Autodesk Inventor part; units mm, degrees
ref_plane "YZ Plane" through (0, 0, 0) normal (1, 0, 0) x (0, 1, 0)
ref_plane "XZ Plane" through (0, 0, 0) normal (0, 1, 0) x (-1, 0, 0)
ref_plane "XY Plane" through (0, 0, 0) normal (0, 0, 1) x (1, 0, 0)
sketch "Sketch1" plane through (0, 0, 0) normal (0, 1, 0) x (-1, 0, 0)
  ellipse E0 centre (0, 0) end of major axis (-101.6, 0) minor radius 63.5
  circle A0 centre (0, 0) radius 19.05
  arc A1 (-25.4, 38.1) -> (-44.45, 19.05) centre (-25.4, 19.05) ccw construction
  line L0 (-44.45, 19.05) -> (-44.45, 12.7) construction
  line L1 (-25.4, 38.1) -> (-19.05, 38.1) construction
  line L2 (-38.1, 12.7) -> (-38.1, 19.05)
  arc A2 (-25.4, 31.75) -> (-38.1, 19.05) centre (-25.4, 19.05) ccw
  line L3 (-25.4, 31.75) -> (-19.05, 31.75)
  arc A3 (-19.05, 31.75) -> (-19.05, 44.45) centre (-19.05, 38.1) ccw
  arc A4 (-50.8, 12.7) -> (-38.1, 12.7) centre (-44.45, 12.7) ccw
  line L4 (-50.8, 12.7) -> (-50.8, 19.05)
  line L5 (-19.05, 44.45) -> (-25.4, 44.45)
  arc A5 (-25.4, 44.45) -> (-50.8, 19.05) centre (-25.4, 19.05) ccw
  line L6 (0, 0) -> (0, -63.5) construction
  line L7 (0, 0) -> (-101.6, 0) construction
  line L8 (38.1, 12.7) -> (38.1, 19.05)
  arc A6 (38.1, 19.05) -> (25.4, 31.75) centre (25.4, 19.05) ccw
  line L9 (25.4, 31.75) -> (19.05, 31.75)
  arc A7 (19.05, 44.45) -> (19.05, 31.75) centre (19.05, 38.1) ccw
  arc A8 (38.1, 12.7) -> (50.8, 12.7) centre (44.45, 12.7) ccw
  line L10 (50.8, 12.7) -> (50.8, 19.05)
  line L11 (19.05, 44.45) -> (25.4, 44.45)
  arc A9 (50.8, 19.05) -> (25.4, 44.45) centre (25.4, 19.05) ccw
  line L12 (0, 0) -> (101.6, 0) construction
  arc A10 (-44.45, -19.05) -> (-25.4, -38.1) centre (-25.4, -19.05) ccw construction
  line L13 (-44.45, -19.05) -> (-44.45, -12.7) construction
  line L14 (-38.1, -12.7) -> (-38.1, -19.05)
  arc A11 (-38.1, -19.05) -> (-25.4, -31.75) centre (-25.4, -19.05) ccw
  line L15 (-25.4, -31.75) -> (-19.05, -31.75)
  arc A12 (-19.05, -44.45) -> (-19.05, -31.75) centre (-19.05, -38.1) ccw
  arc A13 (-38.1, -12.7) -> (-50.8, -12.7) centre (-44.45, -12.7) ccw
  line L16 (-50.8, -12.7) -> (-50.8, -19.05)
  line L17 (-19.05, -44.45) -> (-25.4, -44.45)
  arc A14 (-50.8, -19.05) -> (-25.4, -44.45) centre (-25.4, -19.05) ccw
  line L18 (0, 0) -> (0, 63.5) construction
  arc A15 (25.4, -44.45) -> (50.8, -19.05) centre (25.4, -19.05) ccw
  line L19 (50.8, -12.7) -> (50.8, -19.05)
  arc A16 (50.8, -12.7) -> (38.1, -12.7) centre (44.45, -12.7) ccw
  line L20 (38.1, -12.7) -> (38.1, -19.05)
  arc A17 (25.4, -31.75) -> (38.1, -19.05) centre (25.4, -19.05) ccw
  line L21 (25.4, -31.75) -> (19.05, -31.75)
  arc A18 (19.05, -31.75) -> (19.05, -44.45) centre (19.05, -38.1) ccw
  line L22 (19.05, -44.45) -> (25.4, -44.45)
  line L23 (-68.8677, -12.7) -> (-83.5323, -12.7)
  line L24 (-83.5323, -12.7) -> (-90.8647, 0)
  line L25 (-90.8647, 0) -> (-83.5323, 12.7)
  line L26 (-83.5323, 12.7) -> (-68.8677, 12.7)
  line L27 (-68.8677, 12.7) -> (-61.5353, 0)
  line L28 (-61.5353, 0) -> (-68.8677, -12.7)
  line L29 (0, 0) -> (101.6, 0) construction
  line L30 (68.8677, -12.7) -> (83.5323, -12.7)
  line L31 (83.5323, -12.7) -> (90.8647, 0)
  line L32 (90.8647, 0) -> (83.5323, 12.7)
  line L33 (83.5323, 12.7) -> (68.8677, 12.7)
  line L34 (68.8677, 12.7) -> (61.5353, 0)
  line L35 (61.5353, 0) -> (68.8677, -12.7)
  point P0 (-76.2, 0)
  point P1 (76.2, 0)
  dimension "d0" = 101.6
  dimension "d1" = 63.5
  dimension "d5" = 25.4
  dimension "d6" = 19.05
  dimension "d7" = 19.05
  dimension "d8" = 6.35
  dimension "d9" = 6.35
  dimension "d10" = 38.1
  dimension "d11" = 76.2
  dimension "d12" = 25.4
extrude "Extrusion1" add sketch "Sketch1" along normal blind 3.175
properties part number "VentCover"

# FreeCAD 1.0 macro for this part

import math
import FreeCAD as App
import Part
import Sketcher
Q = App.Units.Quantity


def add_polygon(sketch, points):
    """Adds a closed chain of lines whose ends are joined by coincident constraints."""
    first, n = sketch.GeometryCount, len(points)
    for a, b in zip(points, points[1:] + points[:1]):
        sketch.addGeometry(Part.LineSegment(App.Vector(*a, 0), App.Vector(*b, 0)), False)
    for i in range(n):
        sketch.addConstraint(Sketcher.Constraint("Coincident", first + i, 2, first + (i + 1) % n, 1))

doc = App.newDocument("Part")
params = doc.addObject("Spreadsheet::Sheet", "Params")
for row, (alias, value) in enumerate([
    ("sketch1_radius", "1 in"),
    ("sketch1_diameter", "1.5 in"),
    ("sketch1_radius2", "0.5 in"),
    ("sketch1_width", "0.25 in"),
    ("pad1_length", "0.125 in"),
], start=1):
    params.set(f"A{row}", alias)
    params.set(f"B{row}", "=" + value)
    params.setAlias(f"B{row}", alias)

body = doc.addObject("PartDesign::Body", "Body")

sketch1 = body.newObject("Sketcher::SketchObject", "Sketch")
sketch1.AttachmentSupport = (doc.getObject("XZ_Plane"), [""])
sketch1.MapMode = "FlatFace"
sketch1.addGeometry(Part.Ellipse(App.Vector(101.6, 0, 0), App.Vector(0, 63.5, 0), App.Vector(0, 0, 0)), False)
sketch1.addGeometry(Part.ArcOfCircle(Part.Circle(App.Vector(44.45, -12.7, 0), App.Vector(0, 0, 1), 6.35), math.radians(0), math.radians(180)), False)
sketch1.addGeometry(Part.LineSegment(App.Vector(38.1, -12.7, 0), App.Vector(38.1, -19.05, 0)), False)
sketch1.addGeometry(Part.ArcOfCircle(Part.Circle(App.Vector(25.4, -19.05, 0), App.Vector(0, 0, 1), 12.7), math.radians(-90), math.radians(0)), False)
sketch1.addGeometry(Part.LineSegment(App.Vector(25.4, -31.75, 0), App.Vector(19.05, -31.75, 0)), False)
sketch1.addGeometry(Part.ArcOfCircle(Part.Circle(App.Vector(19.05, -38.1, 0), App.Vector(0, 0, 1), 6.35), math.radians(90), math.radians(270)), False)
sketch1.addGeometry(Part.LineSegment(App.Vector(19.05, -44.45, 0), App.Vector(25.4, -44.45, 0)), False)
sketch1.addGeometry(Part.ArcOfCircle(Part.Circle(App.Vector(25.4, -19.05, 0), App.Vector(0, 0, 1), 25.4), math.radians(-90), math.radians(0)), False)
sketch1.addGeometry(Part.LineSegment(App.Vector(50.8, -19.05, 0), App.Vector(50.8, -12.7, 0)), False)
sketch1.addGeometry(Part.ArcOfCircle(Part.Circle(App.Vector(-25.4, -19.05, 0), App.Vector(0, 0, 1), 25.4), math.radians(180), math.radians(270)), False)
sketch1.addGeometry(Part.LineSegment(App.Vector(-25.4, -44.45, 0), App.Vector(-19.05, -44.45, 0)), False)
sketch1.addGeometry(Part.ArcOfCircle(Part.Circle(App.Vector(-19.05, -38.1, 0), App.Vector(0, 0, 1), 6.35), math.radians(-90), math.radians(90)), False)
sketch1.addGeometry(Part.LineSegment(App.Vector(-19.05, -31.75, 0), App.Vector(-25.4, -31.75, 0)), False)
sketch1.addGeometry(Part.ArcOfCircle(Part.Circle(App.Vector(-25.4, -19.05, 0), App.Vector(0, 0, 1), 12.7), math.radians(180), math.radians(270)), False)
sketch1.addGeometry(Part.LineSegment(App.Vector(-38.1, -19.05, 0), App.Vector(-38.1, -12.7, 0)), False)
sketch1.addGeometry(Part.ArcOfCircle(Part.Circle(App.Vector(-44.45, -12.7, 0), App.Vector(0, 0, 1), 6.35), math.radians(0), math.radians(180)), False)
sketch1.addGeometry(Part.LineSegment(App.Vector(-50.8, -12.7, 0), App.Vector(-50.8, -19.05, 0)), False)
add_polygon(sketch1, [(61.5353, 0), (68.8677, -12.7), (83.5323, -12.7), (90.8647, 0), (83.5323, 12.7), (68.8677, 12.7)])
sketch1.addGeometry(Part.Circle(App.Vector(0, 0, 0), App.Vector(0, 0, 1), 19.05), False)
sketch1.addGeometry(Part.LineSegment(App.Vector(38.1, 19.05, 0), App.Vector(38.1, 12.7, 0)), False)
sketch1.addGeometry(Part.ArcOfCircle(Part.Circle(App.Vector(44.45, 12.7, 0), App.Vector(0, 0, 1), 6.35), math.radians(180), math.radians(360)), False)
sketch1.addGeometry(Part.LineSegment(App.Vector(50.8, 12.7, 0), App.Vector(50.8, 19.05, 0)), False)
sketch1.addGeometry(Part.ArcOfCircle(Part.Circle(App.Vector(25.4, 19.05, 0), App.Vector(0, 0, 1), 25.4), math.radians(0), math.radians(90)), False)
sketch1.addGeometry(Part.LineSegment(App.Vector(25.4, 44.45, 0), App.Vector(19.05, 44.45, 0)), False)
sketch1.addGeometry(Part.ArcOfCircle(Part.Circle(App.Vector(19.05, 38.1, 0), App.Vector(0, 0, 1), 6.35), math.radians(90), math.radians(270)), False)
sketch1.addGeometry(Part.LineSegment(App.Vector(19.05, 31.75, 0), App.Vector(25.4, 31.75, 0)), False)
sketch1.addGeometry(Part.ArcOfCircle(Part.Circle(App.Vector(25.4, 19.05, 0), App.Vector(0, 0, 1), 12.7), math.radians(0), math.radians(90)), False)
sketch1.addGeometry(Part.ArcOfCircle(Part.Circle(App.Vector(-44.45, 12.7, 0), App.Vector(0, 0, 1), 6.35), math.radians(180), math.radians(360)), False)
sketch1.addGeometry(Part.LineSegment(App.Vector(-38.1, 12.7, 0), App.Vector(-38.1, 19.05, 0)), False)
sketch1.addGeometry(Part.ArcOfCircle(Part.Circle(App.Vector(-25.4, 19.05, 0), App.Vector(0, 0, 1), 12.7), math.radians(90), math.radians(180)), False)
sketch1.addGeometry(Part.LineSegment(App.Vector(-25.4, 31.75, 0), App.Vector(-19.05, 31.75, 0)), False)
sketch1.addGeometry(Part.ArcOfCircle(Part.Circle(App.Vector(-19.05, 38.1, 0), App.Vector(0, 0, 1), 6.35), math.radians(-90), math.radians(90)), False)
sketch1.addGeometry(Part.LineSegment(App.Vector(-19.05, 44.45, 0), App.Vector(-25.4, 44.45, 0)), False)
sketch1.addGeometry(Part.ArcOfCircle(Part.Circle(App.Vector(-25.4, 19.05, 0), App.Vector(0, 0, 1), 25.4), math.radians(90), math.radians(180)), False)
sketch1.addGeometry(Part.LineSegment(App.Vector(-50.8, 19.05, 0), App.Vector(-50.8, 12.7, 0)), False)
add_polygon(sketch1, [(-83.5323, -12.7), (-68.8677, -12.7), (-61.5353, 0), (-68.8677, 12.7), (-83.5323, 12.7), (-90.8647, 0)])
sketch1.addConstraint([
    Sketcher.Constraint("Block", 0),
    Sketcher.Constraint("Tangent", 1, 2, 2, 1),
    Sketcher.Constraint("Tangent", 2, 2, 3, 2),
    Sketcher.Constraint("Tangent", 3, 1, 4, 1),
    Sketcher.Constraint("Tangent", 4, 2, 5, 1),
    Sketcher.Constraint("Tangent", 5, 2, 6, 1),
    Sketcher.Constraint("Tangent", 6, 2, 7, 1),
    Sketcher.Constraint("Tangent", 7, 2, 8, 1),
    Sketcher.Constraint("Tangent", 8, 2, 1, 1),
    Sketcher.Constraint("Tangent", 9, 2, 10, 1),
    Sketcher.Constraint("Tangent", 10, 2, 11, 1),
    Sketcher.Constraint("Tangent", 11, 2, 12, 1),
    Sketcher.Constraint("Tangent", 12, 2, 13, 2),
    Sketcher.Constraint("Tangent", 13, 1, 14, 1),
    Sketcher.Constraint("Tangent", 14, 2, 15, 1),
    Sketcher.Constraint("Tangent", 15, 2, 16, 1),
    Sketcher.Constraint("Tangent", 16, 2, 9, 1),
    Sketcher.Constraint("Tangent", 24, 2, 25, 1),
    Sketcher.Constraint("Tangent", 25, 2, 26, 1),
    Sketcher.Constraint("Tangent", 26, 2, 27, 1),
    Sketcher.Constraint("Tangent", 27, 2, 28, 1),
    Sketcher.Constraint("Tangent", 28, 2, 29, 1),
    Sketcher.Constraint("Tangent", 29, 2, 30, 1),
    Sketcher.Constraint("Tangent", 30, 2, 31, 2),
    Sketcher.Constraint("Tangent", 31, 1, 24, 1),
    Sketcher.Constraint("Tangent", 32, 2, 33, 1),
    Sketcher.Constraint("Tangent", 33, 2, 34, 2),
    Sketcher.Constraint("Tangent", 34, 1, 35, 1),
    Sketcher.Constraint("Tangent", 35, 2, 36, 1),
    Sketcher.Constraint("Tangent", 36, 2, 37, 1),
    Sketcher.Constraint("Tangent", 37, 2, 38, 1),
    Sketcher.Constraint("Tangent", 38, 2, 39, 1),
    Sketcher.Constraint("Tangent", 39, 2, 32, 1),
    Sketcher.Constraint("Vertical", 2),
    Sketcher.Constraint("Horizontal", 4),
    Sketcher.Constraint("Horizontal", 6),
    Sketcher.Constraint("Vertical", 8),
    Sketcher.Constraint("Horizontal", 10),
    Sketcher.Constraint("Horizontal", 12),
    Sketcher.Constraint("Vertical", 14),
    Sketcher.Constraint("Vertical", 16),
    Sketcher.Constraint("Horizontal", 18),
    Sketcher.Constraint("Horizontal", 21),
    Sketcher.Constraint("Vertical", 24),
    Sketcher.Constraint("Vertical", 26),
    Sketcher.Constraint("Horizontal", 28),
    Sketcher.Constraint("Horizontal", 30),
    Sketcher.Constraint("Vertical", 33),
    Sketcher.Constraint("Horizontal", 35),
    Sketcher.Constraint("Horizontal", 37),
    Sketcher.Constraint("Vertical", 39),
    Sketcher.Constraint("Horizontal", 40),
    Sketcher.Constraint("Horizontal", 43),
    Sketcher.Constraint("Coincident", 23, 3, -1, 1),
    Sketcher.Constraint("Coincident", 7, 3, 3, 3),
    Sketcher.Constraint("Coincident", 13, 3, 9, 3),
    Sketcher.Constraint("Coincident", 31, 3, 27, 3),
    Sketcher.Constraint("Coincident", 38, 3, 34, 3),
    Sketcher.Constraint("Equal", 7, 9),
    Sketcher.Constraint("Equal", 5, 11),
    Sketcher.Constraint("Equal", 15, 25),
    Sketcher.Constraint("Equal", 9, 27),
    Sketcher.Constraint("Equal", 29, 32),
    Sketcher.Constraint("Equal", 31, 34),
    Sketcher.Constraint("Symmetric", 15, 3, 25, 3, -1, 1),
    Sketcher.Constraint("Symmetric", 11, 3, 29, 3, -1, 1),
    Sketcher.Constraint("Symmetric", 1, 3, 32, 3, -1, 1),
    Sketcher.Constraint("Symmetric", 5, 3, 36, 3, -1, 1),
    Sketcher.Constraint("Symmetric", 21, 2, 40, 2, -1, 1),
    Sketcher.Constraint("Symmetric", 22, 2, 41, 2, -1, 1),
    Sketcher.Constraint("Symmetric", 17, 2, 42, 2, -1, 1),
    Sketcher.Constraint("Symmetric", 19, 2, 44, 2, -1, 1),
    Sketcher.Constraint("Symmetric", 3, 3, 9, 3, -2),
    Sketcher.Constraint("Symmetric", 17, 2, 40, 2, -2),
    Sketcher.Constraint("PointOnObject", 19, 2, -1),
    Sketcher.Constraint("PointOnObject", 22, 2, -1),
    Sketcher.Constraint("Parallel", 17, 20),
    Sketcher.Constraint("Parallel", 19, 22),
    Sketcher.Constraint("Parallel", 41, 44),
    Sketcher.Constraint("Parallel", 42, 45),
    Sketcher.Constraint("Horizontal", 1, 3, 15, 3),
    Sketcher.Constraint("Horizontal", 15, 2, 17, 2),
    Sketcher.Constraint("Vertical", 5, 3, 29, 3),
    Sketcher.Constraint("Equal", 37, 2),
    Sketcher.Constraint("Radius", 7, Q("1 in")),
    Sketcher.Constraint("Diameter", 23, Q("1.5 in")),
    Sketcher.Constraint("Radius", 3, Q("0.5 in")),
    Sketcher.Constraint("DistanceX", -1, 1, 3, 3, Q("1 in")),
    Sketcher.Constraint("DistanceX", 4, 2, 4, 1, Q("0.25 in")),
    Sketcher.Constraint("DistanceY", 5, 3, -1, 1, Q("1.5 in")),
    Sketcher.Constraint("Angle", 17, Q("-59.9998 deg")),
    Sketcher.Constraint("DistanceX", 18, 1, 18, 2, Q("14.6646 mm")),
    Sketcher.Constraint("DistanceX", -1, 1, 17, 2, Q("68.8677 mm")),
])
sketch1.setExpression("Constraints[96]", "Params.sketch1_radius")
sketch1.setExpression("Constraints[97]", "Params.sketch1_diameter")
sketch1.setExpression("Constraints[98]", "Params.sketch1_radius2")
sketch1.setExpression("Constraints[100]", "Params.sketch1_width")
pad1 = body.newObject("PartDesign::Pad", "Pad")
pad1.Profile = sketch1
pad1.setExpression("Length", "Params.pad1_length")
pad1.Reversed = True

doc.recompute()
